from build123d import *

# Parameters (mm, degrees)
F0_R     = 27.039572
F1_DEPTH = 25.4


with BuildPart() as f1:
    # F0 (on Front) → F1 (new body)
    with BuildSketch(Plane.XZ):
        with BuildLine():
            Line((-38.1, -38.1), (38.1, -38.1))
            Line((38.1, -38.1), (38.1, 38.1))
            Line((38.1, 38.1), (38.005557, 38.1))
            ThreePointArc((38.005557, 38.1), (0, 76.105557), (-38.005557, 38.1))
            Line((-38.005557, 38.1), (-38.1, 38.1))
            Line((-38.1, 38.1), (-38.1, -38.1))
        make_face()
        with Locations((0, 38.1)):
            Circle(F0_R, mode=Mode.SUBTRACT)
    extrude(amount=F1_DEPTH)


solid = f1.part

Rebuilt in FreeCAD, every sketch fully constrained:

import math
import FreeCAD as App
import Part
import Sketcher

V = App.Vector
Q = App.Units.Quantity

doc = App.newDocument("Part")
params = doc.addObject("Spreadsheet::Sheet", "Params")
for row, (alias, value) in enumerate([
    ("sketch1_width", "3 in"),
    ("pad1_length", "1 in"),
], start=1):
    params.set(f"A{row}", alias)
    params.set(f"B{row}", "=" + value)
    params.setAlias(f"B{row}", alias)

body = doc.addObject("PartDesign::Body", "Body")

sketch1 = doc.addObject("Sketcher::SketchObject", "Sketch")
body.addObject(sketch1)
sketch1.AttachmentSupport = (doc.XZ_Plane, [""])
sketch1.MapMode = "FlatFace"
sketch1.addGeometry([
    Part.LineSegment(V(-38.1, -38.1, 0), V(38.1, -38.1, 0)),
    Part.LineSegment(V(38.1, -38.1, 0), V(38.1, 38.1, 0)),
    Part.LineSegment(V(38.1, 38.1, 0), V(38.01, 38.1, 0)),
    Part.ArcOfCircle(Part.Circle(V(0, 38.1, 0), V(0, 0, 1), 38.01), math.radians(0), math.radians(180)),
    Part.LineSegment(V(-38.01, 38.1, 0), V(-38.1, 38.1, 0)),
    Part.LineSegment(V(-38.1, 38.1, 0), V(-38.1, -38.1, 0)),
    Part.Circle(V(0, 38.1, 0), V(0, 0, 1), 27.04),
], False)
sketch1.addConstraint([
    Sketcher.Constraint("Coincident", 0, 2, 1, 1),
    Sketcher.Constraint("Coincident", 1, 2, 2, 1),
    Sketcher.Constraint("Coincident", 2, 2, 3, 1),
    Sketcher.Constraint("Coincident", 3, 2, 4, 1),
    Sketcher.Constraint("Coincident", 4, 2, 5, 1),
    Sketcher.Constraint("Coincident", 5, 2, 0, 1),
    Sketcher.Constraint("Horizontal", 0),
    Sketcher.Constraint("Vertical", 1),
    Sketcher.Constraint("Horizontal", 2),
    Sketcher.Constraint("Horizontal", 4),
    Sketcher.Constraint("Vertical", 5),
    Sketcher.Constraint("Coincident", 6, 3, 3, 3),
    Sketcher.Constraint("Symmetric", 0, 2, 4, 2, -1, 1),
    Sketcher.Constraint("Symmetric", 2, 2, 3, 2, -2),
    Sketcher.Constraint("Horizontal", 6, 3, 1, 2),
    Sketcher.Constraint("Equal", 0, 1),
    Sketcher.Constraint("DistanceX", 0, 1, 0, 2, Q("3 in")),
    Sketcher.Constraint("Diameter", 6, Q("2.1291002 in")),
    Sketcher.Constraint("Radius", 3, 38.005557),
])
sketch1.setExpression("Constraints[16]", "Params.sketch1_width")
pad1 = doc.addObject("PartDesign::Pad", "Pad")
body.addObject(pad1)
pad1.Profile = sketch1
pad1.setExpression("Length", "Params.pad1_length")

doc.recompute()
